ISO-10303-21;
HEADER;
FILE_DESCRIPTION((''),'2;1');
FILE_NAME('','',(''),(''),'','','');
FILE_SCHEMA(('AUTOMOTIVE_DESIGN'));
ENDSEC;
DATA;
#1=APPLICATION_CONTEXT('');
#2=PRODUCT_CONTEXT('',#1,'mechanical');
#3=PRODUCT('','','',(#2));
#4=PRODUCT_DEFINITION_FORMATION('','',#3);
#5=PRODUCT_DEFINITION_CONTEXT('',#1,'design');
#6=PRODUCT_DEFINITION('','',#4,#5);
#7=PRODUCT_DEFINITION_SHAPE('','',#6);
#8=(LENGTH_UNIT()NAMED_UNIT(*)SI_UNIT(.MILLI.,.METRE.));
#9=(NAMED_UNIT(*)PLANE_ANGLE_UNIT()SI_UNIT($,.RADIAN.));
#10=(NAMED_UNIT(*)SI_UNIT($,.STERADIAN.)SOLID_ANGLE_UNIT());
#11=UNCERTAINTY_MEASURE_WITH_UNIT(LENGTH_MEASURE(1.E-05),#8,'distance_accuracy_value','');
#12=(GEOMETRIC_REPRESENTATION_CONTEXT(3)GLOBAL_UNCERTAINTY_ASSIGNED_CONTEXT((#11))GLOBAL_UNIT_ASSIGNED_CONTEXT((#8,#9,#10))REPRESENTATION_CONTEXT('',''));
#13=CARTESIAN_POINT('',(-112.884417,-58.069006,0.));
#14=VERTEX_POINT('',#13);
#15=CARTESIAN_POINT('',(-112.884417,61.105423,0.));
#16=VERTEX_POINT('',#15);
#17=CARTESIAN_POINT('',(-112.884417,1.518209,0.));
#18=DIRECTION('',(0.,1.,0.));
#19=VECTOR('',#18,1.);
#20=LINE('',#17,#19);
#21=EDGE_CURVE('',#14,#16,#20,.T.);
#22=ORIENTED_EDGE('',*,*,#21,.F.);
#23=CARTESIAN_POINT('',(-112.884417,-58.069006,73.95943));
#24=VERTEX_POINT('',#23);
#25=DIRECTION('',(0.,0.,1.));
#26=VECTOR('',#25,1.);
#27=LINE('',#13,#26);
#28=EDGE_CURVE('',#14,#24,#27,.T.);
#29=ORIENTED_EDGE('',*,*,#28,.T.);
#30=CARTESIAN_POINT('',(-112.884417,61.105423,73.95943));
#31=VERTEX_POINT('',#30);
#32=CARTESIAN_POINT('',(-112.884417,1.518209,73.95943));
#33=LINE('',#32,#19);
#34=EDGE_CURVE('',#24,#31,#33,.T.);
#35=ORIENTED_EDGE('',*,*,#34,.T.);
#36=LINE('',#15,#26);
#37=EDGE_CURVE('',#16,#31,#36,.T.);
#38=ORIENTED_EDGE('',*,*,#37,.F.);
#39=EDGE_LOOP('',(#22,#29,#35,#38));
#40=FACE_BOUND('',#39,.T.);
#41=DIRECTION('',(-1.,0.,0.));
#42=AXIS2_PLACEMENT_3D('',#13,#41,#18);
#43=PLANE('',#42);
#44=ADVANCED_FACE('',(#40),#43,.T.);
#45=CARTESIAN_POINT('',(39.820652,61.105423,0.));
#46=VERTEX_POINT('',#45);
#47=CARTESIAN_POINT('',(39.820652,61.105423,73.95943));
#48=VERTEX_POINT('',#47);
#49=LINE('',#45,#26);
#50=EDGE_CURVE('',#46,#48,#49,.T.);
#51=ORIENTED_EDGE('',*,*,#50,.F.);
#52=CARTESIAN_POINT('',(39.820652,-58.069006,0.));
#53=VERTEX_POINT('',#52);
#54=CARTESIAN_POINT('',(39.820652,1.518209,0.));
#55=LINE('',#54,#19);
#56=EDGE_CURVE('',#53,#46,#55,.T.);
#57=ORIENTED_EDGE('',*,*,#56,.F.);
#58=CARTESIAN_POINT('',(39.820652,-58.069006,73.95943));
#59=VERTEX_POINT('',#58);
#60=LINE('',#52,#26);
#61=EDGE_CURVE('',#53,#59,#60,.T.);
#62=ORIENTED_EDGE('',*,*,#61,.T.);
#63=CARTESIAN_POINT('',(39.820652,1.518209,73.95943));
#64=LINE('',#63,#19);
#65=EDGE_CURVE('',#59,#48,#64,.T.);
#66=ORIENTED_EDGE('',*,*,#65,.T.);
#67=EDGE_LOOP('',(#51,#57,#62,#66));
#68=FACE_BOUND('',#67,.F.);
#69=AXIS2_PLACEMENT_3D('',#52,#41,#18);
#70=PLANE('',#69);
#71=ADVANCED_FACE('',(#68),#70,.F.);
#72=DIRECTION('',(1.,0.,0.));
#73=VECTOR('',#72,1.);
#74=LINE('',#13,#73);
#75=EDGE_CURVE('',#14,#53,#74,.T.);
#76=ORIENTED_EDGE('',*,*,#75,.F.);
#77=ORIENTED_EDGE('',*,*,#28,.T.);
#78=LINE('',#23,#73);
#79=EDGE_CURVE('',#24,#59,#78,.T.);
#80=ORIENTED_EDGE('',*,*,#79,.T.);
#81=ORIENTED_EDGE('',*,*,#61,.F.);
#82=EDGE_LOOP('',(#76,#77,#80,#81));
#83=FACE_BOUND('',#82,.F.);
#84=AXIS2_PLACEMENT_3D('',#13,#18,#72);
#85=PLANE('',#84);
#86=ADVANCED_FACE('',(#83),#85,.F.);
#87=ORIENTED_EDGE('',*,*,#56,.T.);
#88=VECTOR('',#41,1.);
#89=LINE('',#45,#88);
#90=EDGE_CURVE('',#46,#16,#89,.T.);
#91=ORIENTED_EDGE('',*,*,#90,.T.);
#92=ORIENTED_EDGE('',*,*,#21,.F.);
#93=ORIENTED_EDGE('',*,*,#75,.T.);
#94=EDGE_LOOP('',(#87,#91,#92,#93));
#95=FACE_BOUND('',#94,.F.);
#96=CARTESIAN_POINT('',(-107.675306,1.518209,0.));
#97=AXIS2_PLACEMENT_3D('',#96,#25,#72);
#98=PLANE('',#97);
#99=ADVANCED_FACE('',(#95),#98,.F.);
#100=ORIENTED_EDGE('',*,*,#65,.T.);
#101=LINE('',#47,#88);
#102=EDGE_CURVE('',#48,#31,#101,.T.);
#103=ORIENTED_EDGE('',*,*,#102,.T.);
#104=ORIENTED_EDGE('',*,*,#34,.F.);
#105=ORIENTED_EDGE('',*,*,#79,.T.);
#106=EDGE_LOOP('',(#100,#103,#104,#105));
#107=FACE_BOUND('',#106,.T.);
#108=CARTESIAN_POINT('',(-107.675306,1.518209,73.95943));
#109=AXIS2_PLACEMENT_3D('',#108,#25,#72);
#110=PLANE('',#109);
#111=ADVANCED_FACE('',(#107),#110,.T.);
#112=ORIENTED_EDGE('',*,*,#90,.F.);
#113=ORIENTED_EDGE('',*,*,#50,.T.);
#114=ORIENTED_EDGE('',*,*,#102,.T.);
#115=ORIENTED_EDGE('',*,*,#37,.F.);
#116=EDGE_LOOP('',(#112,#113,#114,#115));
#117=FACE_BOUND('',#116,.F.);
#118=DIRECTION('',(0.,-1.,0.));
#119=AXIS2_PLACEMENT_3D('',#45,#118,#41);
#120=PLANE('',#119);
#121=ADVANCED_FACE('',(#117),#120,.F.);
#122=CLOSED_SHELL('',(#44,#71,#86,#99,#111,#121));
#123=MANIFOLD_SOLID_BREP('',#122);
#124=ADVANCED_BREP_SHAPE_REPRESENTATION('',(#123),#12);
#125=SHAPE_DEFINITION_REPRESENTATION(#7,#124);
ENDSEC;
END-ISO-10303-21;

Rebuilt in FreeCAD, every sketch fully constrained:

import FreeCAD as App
import Part
import Sketcher
from FreeCAD import Vector
Q = App.Units.Quantity

doc = App.newDocument("Part")
body = doc.addObject("PartDesign::Body", "Body")

sketch1 = body.newObject("Sketcher::SketchObject", "Sketch")
sketch1.AttachmentSupport = (doc.getObject("XY_Plane"), [""])
sketch1.MapMode = "FlatFace"
sketch1.addGeometry([
    Part.LineSegment(Vector(-113, 61, 0), Vector(-113, -58, 0)),
    Part.LineSegment(Vector(-113, -58, 0), Vector(40, -58, 0)),
    Part.LineSegment(Vector(40, -58, 0), Vector(40, 61, 0)),
    Part.LineSegment(Vector(40, 61, 0), Vector(-113, 61, 0)),
], False)
sketch1.addConstraint([
    Sketcher.Constraint("Coincident", 0, 2, 1, 1),
    Sketcher.Constraint("Coincident", 1, 2, 2, 1),
    Sketcher.Constraint("Coincident", 2, 2, 3, 1),
    Sketcher.Constraint("Coincident", 3, 2, 0, 1),
    Sketcher.Constraint("Vertical", 0),
    Sketcher.Constraint("Horizontal", 1),
    Sketcher.Constraint("Vertical", 2),
    Sketcher.Constraint("Horizontal", 3),
    Sketcher.Constraint("DistanceX", 1, 1, 1, 2, Q("152.70507 mm")),
    Sketcher.Constraint("DistanceY", 0, 2, 0, 1, Q("119.174428 mm")),
    Sketcher.Constraint("DistanceX", 0, 2, -1, 1, Q("112.884417 mm")),
    Sketcher.Constraint("DistanceY", 0, 2, -1, 1, Q("58.069006 mm")),
])
pad1 = body.newObject("PartDesign::Pad", "Pad")
pad1.Profile = sketch1
pad1.Length = 73.95943

doc.recompute()
